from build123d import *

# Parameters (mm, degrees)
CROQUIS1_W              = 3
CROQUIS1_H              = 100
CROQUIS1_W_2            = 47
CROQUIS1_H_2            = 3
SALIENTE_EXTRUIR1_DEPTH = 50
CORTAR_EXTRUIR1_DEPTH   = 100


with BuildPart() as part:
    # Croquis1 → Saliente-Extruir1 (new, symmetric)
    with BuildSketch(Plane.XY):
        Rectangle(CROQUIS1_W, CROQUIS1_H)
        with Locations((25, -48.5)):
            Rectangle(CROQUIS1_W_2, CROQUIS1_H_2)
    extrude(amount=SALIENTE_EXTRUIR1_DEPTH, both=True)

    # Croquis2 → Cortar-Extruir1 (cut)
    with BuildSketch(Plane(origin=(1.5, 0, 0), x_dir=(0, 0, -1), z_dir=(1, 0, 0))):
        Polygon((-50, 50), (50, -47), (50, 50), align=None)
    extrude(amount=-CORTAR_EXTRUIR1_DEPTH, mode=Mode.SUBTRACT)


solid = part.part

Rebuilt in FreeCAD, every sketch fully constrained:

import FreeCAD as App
import Part
import Sketcher


def add_polygon(sketch, points):
    """Adds a closed chain of lines whose ends are joined by coincident constraints."""
    first, n = sketch.GeometryCount, len(points)
    for a, b in zip(points, points[1:] + points[:1]):
        sketch.addGeometry(Part.LineSegment(App.Vector(*a, 0), App.Vector(*b, 0)), False)
    for i in range(n):
        sketch.addConstraint(Sketcher.Constraint("Coincident", first + i, 2, first + (i + 1) % n, 1))

doc = App.newDocument("Part")
body = doc.addObject("PartDesign::Body", "Body")

sketch1 = body.newObject("Sketcher::SketchObject", "Sketch")
sketch1.AttachmentSupport = (doc.getObject("XY_Plane"), [""])
sketch1.MapMode = "FlatFace"
add_polygon(sketch1, [(-1.5, 50), (-1.5, -50), (48.5, -50), (48.5, -47), (1.5, -47), (1.5, 50)])
sketch1.addConstraint(Sketcher.Constraint("Vertical", 0))
sketch1.addConstraint(Sketcher.Constraint("Horizontal", 1))
sketch1.addConstraint(Sketcher.Constraint("Vertical", 2))
sketch1.addConstraint(Sketcher.Constraint("Horizontal", 3))
sketch1.addConstraint(Sketcher.Constraint("Vertical", 4))
sketch1.addConstraint(Sketcher.Constraint("Horizontal", 5))
sketch1.addConstraint(Sketcher.Constraint("Symmetric", 0, 2, 4, 2, -1, 1))
sketch1.addConstraint(Sketcher.Constraint("Equal", 5, 2))
sketch1.addConstraint(Sketcher.Constraint("DistanceX", 1, 1, 1, 2, 50.0))
sketch1.addConstraint(Sketcher.Constraint("DistanceX", 3, 2, 3, 1, 47.0))
sketch1.addConstraint(Sketcher.Constraint("DistanceY", 0, 2, 0, 1, 100.0))
pad1 = body.newObject("PartDesign::Pad", "Pad")
pad1.Profile = sketch1
pad1.Length = 100
pad1.Midplane = True

sketch2 = body.newObject("Sketcher::SketchObject", "Sketch001")
sketch2.AttachmentSupport = (doc.getObject("YZ_Plane"), [""])
sketch2.MapMode = "FlatFace"
sketch2.AttachmentOffset = App.Placement(App.Vector(0, 0, 1.5), App.Rotation())
add_polygon(sketch2, [(50, 50), (-47, -50), (50, -50)])
sketch2.addConstraint(Sketcher.Constraint("Horizontal", 1))
sketch2.addConstraint(Sketcher.Constraint("Vertical", 2))
sketch2.addConstraint(Sketcher.Constraint("DistanceX", 1, 1, 1, 2, 97.0))
sketch2.addConstraint(Sketcher.Constraint("DistanceY", 2, 1, 2, 2, 100.0))
sketch2.addConstraint(Sketcher.Constraint("DistanceX", 0, 2, -1, 1, 47.0))
sketch2.addConstraint(Sketcher.Constraint("DistanceY", 0, 2, -1, 1, 50.0))
pocket1 = body.newObject("PartDesign::Pocket", "Pocket")
pocket1.Profile = sketch2
pocket1.Length = 100

doc.recompute()
